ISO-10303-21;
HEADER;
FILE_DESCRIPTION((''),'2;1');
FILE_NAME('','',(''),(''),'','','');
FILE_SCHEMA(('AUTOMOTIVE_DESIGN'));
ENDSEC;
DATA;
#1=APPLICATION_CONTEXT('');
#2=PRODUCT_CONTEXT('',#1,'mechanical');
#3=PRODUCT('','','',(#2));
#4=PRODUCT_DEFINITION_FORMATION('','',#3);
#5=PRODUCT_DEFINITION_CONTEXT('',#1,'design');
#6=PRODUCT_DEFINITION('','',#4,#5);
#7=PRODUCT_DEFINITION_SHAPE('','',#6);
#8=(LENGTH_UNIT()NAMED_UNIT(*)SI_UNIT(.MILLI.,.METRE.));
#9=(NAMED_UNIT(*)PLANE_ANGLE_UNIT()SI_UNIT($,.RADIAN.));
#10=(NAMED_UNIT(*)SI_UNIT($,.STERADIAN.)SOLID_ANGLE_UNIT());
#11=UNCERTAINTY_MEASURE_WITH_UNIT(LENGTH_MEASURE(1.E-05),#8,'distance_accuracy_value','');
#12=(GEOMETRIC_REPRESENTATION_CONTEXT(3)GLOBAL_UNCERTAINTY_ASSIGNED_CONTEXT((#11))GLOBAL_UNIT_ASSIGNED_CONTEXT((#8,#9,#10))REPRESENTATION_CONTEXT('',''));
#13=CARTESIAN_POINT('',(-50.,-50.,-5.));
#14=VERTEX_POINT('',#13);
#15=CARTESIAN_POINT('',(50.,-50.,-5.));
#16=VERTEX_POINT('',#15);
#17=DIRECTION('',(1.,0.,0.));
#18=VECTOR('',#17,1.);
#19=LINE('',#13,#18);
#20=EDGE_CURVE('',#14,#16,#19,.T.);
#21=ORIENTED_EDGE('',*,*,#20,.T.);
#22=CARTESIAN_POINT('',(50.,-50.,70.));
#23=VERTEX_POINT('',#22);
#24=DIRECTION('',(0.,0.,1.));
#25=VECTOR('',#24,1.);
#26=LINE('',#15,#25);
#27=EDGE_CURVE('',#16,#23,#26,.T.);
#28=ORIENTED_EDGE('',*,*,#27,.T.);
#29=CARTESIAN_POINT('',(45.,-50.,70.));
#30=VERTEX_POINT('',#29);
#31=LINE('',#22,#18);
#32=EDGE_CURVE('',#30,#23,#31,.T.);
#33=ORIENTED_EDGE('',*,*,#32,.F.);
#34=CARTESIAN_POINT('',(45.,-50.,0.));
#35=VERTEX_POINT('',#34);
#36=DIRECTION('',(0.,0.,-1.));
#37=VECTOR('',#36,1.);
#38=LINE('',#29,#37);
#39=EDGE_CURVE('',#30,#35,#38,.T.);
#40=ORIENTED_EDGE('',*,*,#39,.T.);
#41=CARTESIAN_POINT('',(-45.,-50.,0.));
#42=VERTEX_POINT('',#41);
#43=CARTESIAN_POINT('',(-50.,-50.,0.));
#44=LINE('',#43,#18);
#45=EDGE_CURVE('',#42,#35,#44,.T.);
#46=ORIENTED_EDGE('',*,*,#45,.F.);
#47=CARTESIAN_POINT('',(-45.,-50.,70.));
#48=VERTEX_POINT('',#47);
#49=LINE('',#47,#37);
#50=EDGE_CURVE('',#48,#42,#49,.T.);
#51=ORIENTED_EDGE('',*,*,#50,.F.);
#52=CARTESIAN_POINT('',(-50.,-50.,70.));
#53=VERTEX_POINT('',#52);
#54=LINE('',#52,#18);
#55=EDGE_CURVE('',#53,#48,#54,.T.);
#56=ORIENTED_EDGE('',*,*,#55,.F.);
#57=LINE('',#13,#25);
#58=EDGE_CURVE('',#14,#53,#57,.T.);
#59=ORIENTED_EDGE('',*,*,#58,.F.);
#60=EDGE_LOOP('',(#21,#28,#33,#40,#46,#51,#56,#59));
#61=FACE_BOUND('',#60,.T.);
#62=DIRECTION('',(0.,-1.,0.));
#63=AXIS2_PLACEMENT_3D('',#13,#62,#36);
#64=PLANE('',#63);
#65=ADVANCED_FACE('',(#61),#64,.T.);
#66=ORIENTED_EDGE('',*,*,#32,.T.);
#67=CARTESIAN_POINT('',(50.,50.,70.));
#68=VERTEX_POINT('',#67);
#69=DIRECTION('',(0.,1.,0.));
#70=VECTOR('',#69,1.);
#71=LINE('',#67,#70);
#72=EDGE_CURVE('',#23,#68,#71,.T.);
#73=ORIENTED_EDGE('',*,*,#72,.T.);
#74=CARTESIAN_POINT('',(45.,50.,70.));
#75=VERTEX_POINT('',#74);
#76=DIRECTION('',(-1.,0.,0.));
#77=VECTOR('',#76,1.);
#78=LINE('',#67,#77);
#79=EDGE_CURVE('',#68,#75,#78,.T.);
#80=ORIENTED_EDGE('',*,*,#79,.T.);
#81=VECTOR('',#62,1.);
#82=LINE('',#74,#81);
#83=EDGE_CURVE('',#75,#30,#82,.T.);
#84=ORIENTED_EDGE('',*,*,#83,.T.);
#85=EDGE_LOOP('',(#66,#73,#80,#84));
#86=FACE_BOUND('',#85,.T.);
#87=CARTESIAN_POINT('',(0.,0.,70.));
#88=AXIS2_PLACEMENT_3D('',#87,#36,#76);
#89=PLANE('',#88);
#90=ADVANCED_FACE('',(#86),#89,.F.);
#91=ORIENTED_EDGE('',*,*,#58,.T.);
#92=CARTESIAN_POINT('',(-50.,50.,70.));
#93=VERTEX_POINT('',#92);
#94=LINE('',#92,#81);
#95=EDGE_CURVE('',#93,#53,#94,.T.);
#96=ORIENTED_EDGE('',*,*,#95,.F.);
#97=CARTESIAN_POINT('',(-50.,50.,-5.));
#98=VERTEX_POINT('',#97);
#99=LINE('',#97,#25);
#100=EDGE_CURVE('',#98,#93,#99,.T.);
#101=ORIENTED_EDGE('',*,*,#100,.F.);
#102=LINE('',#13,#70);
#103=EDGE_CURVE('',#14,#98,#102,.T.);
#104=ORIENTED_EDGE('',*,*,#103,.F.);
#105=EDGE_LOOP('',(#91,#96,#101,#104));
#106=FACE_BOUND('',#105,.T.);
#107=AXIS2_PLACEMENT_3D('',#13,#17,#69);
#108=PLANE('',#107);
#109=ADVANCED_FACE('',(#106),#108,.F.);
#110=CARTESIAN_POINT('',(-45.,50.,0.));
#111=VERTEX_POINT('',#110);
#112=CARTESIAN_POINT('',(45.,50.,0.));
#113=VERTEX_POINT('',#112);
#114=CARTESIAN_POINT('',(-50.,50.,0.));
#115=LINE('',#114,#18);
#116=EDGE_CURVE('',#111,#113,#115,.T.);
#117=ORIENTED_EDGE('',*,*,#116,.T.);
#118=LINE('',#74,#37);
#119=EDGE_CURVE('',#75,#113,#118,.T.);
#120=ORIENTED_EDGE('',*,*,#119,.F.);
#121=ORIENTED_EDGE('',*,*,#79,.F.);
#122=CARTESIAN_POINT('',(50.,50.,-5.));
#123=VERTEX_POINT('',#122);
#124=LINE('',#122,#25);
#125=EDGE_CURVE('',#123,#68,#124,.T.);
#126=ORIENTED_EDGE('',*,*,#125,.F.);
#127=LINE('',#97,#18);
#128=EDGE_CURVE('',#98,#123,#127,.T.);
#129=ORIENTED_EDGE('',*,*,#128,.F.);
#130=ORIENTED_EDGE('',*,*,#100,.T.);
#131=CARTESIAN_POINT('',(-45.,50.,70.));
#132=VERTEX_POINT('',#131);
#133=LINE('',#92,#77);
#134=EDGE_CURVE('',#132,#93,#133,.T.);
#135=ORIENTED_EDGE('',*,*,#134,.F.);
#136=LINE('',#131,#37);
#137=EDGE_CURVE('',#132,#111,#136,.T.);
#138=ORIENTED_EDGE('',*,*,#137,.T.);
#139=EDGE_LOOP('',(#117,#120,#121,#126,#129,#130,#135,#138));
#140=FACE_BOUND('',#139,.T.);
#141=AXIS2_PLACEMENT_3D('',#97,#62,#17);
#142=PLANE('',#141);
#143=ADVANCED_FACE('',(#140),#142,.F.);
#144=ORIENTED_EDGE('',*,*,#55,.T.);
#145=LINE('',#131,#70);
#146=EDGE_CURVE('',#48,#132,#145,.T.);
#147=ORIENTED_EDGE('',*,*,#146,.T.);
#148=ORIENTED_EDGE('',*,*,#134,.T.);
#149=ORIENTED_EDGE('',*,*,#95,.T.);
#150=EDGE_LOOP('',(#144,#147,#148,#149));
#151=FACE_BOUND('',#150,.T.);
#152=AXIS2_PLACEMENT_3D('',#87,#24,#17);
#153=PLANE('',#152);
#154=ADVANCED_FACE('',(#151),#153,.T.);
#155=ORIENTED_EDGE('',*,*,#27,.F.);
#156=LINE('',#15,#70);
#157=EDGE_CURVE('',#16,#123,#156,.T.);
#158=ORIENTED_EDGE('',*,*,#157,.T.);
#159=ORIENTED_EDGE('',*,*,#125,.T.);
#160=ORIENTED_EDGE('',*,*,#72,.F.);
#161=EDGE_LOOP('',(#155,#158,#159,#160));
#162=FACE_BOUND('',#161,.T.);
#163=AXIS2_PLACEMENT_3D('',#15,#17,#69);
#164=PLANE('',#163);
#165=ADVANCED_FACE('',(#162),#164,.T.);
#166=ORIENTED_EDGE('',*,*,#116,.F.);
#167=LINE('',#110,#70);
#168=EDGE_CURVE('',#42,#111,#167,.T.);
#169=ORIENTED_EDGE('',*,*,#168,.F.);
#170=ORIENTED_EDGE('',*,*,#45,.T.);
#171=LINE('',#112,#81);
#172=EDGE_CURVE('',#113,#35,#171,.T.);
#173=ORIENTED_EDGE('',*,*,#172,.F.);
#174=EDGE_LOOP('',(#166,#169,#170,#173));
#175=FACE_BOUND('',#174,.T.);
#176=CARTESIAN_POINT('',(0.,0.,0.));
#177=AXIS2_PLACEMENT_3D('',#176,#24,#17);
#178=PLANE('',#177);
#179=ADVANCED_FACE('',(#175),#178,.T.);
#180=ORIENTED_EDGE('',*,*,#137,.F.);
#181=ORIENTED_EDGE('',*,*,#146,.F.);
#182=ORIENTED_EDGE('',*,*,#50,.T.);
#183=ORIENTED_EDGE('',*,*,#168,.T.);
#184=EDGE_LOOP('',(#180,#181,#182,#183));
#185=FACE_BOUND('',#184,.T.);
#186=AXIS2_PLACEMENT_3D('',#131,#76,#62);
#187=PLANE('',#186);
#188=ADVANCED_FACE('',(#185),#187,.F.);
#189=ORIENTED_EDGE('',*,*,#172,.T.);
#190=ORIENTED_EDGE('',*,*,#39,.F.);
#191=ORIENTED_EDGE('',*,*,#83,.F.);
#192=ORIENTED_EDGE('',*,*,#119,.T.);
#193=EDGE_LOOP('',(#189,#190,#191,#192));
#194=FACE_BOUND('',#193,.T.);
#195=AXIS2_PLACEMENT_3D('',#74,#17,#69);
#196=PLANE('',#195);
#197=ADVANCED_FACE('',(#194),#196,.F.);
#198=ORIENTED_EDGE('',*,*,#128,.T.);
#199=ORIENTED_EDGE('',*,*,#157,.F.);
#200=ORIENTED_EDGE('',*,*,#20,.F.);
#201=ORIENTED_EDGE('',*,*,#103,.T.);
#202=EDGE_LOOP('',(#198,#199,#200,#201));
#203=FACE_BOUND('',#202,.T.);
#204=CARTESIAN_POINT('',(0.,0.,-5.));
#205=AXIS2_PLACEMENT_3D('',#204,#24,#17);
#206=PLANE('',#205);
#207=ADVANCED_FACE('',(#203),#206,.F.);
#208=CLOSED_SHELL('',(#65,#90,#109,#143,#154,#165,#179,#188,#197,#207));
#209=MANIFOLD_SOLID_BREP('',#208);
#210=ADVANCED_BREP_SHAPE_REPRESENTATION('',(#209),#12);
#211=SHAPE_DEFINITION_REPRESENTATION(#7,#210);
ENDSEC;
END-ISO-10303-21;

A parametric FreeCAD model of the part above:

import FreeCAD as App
import Part
import Sketcher
from FreeCAD import Vector
Q = App.Units.Quantity


def add_polygon(sketch, points):
    """Adds a closed chain of lines whose ends are joined by coincident constraints."""
    first, n = sketch.GeometryCount, len(points)
    for a, b in zip(points, points[1:] + points[:1]):
        sketch.addGeometry(Part.LineSegment(App.Vector(*a, 0), App.Vector(*b, 0)), False)
    for i in range(n):
        sketch.addConstraint(Sketcher.Constraint("Coincident", first + i, 2, first + (i + 1) % n, 1))

doc = App.newDocument("Part")
body = doc.addObject("PartDesign::Body", "Body")

# Sketch on XY plane
sketch1 = doc.addObject("Sketcher::SketchObject", "Sketch")
body.addObject(sketch1)
sketch1.AttachmentSupport = (doc.XY_Plane, [""])
sketch1.MapMode = "FlatFace"
add_polygon(sketch1, [(-50, 50), (-50, -50), (50, -50), (50, 50)])  # lines 0-3
sketch1.addConstraint(Sketcher.Constraint("Vertical", 0))
sketch1.addConstraint(Sketcher.Constraint("Horizontal", 1))
sketch1.addConstraint(Sketcher.Constraint("Vertical", 2))
sketch1.addConstraint(Sketcher.Constraint("Horizontal", 3))
sketch1.addConstraint(Sketcher.Constraint("Symmetric", 0, 2, 2, 2, -1, 1))
sketch1.addConstraint(Sketcher.Constraint("Equal", 3, 0))
sketch1.addConstraint(Sketcher.Constraint("DistanceX", 1, 1, 1, 2, Q("100 mm")))
pad1 = doc.addObject("PartDesign::Pad", "Pad")
body.addObject(pad1)
pad1.Profile = sketch1
pad1.Length = 5
pad1.Reversed = True

# Sketch on XY plane
sketch2 = doc.addObject("Sketcher::SketchObject", "Sketch001")
body.addObject(sketch2)
sketch2.AttachmentSupport = (doc.XY_Plane, [""])
sketch2.MapMode = "FlatFace"
add_polygon(sketch2, [(-50, 50), (-50, -50), (-45, -50), (-45, 50)])  # lines 0-3
add_polygon(sketch2, [(45, 50), (45, -50), (50, -50), (50, 50)])  # lines 4-7
sketch2.addConstraint(Sketcher.Constraint("Vertical", 0))
sketch2.addConstraint(Sketcher.Constraint("Horizontal", 1))
sketch2.addConstraint(Sketcher.Constraint("Vertical", 2))
sketch2.addConstraint(Sketcher.Constraint("Horizontal", 3))
sketch2.addConstraint(Sketcher.Constraint("Vertical", 4))
sketch2.addConstraint(Sketcher.Constraint("Horizontal", 5))
sketch2.addConstraint(Sketcher.Constraint("Vertical", 6))
sketch2.addConstraint(Sketcher.Constraint("Horizontal", 7))
sketch2.addConstraint(Sketcher.Constraint("Symmetric", 2, 2, 4, 2, -1, 1))
sketch2.addConstraint(Sketcher.Constraint("Symmetric", 0, 2, 6, 2, -1, 1))
sketch2.addConstraint(Sketcher.Constraint("Horizontal", 1, 2, 4, 2))
sketch2.addConstraint(Sketcher.Constraint("DistanceX", 1, 1, 1, 2, Q("5 mm")))
sketch2.addConstraint(Sketcher.Constraint("DistanceY", 0, 2, 0, 1, Q("100 mm")))
sketch2.addConstraint(Sketcher.Constraint("DistanceX", 0, 2, -1, 1, Q("50 mm")))
pad2 = doc.addObject("PartDesign::Pad", "Pad001")
body.addObject(pad2)
pad2.Profile = sketch2
pad2.Length = 70

doc.recompute()
